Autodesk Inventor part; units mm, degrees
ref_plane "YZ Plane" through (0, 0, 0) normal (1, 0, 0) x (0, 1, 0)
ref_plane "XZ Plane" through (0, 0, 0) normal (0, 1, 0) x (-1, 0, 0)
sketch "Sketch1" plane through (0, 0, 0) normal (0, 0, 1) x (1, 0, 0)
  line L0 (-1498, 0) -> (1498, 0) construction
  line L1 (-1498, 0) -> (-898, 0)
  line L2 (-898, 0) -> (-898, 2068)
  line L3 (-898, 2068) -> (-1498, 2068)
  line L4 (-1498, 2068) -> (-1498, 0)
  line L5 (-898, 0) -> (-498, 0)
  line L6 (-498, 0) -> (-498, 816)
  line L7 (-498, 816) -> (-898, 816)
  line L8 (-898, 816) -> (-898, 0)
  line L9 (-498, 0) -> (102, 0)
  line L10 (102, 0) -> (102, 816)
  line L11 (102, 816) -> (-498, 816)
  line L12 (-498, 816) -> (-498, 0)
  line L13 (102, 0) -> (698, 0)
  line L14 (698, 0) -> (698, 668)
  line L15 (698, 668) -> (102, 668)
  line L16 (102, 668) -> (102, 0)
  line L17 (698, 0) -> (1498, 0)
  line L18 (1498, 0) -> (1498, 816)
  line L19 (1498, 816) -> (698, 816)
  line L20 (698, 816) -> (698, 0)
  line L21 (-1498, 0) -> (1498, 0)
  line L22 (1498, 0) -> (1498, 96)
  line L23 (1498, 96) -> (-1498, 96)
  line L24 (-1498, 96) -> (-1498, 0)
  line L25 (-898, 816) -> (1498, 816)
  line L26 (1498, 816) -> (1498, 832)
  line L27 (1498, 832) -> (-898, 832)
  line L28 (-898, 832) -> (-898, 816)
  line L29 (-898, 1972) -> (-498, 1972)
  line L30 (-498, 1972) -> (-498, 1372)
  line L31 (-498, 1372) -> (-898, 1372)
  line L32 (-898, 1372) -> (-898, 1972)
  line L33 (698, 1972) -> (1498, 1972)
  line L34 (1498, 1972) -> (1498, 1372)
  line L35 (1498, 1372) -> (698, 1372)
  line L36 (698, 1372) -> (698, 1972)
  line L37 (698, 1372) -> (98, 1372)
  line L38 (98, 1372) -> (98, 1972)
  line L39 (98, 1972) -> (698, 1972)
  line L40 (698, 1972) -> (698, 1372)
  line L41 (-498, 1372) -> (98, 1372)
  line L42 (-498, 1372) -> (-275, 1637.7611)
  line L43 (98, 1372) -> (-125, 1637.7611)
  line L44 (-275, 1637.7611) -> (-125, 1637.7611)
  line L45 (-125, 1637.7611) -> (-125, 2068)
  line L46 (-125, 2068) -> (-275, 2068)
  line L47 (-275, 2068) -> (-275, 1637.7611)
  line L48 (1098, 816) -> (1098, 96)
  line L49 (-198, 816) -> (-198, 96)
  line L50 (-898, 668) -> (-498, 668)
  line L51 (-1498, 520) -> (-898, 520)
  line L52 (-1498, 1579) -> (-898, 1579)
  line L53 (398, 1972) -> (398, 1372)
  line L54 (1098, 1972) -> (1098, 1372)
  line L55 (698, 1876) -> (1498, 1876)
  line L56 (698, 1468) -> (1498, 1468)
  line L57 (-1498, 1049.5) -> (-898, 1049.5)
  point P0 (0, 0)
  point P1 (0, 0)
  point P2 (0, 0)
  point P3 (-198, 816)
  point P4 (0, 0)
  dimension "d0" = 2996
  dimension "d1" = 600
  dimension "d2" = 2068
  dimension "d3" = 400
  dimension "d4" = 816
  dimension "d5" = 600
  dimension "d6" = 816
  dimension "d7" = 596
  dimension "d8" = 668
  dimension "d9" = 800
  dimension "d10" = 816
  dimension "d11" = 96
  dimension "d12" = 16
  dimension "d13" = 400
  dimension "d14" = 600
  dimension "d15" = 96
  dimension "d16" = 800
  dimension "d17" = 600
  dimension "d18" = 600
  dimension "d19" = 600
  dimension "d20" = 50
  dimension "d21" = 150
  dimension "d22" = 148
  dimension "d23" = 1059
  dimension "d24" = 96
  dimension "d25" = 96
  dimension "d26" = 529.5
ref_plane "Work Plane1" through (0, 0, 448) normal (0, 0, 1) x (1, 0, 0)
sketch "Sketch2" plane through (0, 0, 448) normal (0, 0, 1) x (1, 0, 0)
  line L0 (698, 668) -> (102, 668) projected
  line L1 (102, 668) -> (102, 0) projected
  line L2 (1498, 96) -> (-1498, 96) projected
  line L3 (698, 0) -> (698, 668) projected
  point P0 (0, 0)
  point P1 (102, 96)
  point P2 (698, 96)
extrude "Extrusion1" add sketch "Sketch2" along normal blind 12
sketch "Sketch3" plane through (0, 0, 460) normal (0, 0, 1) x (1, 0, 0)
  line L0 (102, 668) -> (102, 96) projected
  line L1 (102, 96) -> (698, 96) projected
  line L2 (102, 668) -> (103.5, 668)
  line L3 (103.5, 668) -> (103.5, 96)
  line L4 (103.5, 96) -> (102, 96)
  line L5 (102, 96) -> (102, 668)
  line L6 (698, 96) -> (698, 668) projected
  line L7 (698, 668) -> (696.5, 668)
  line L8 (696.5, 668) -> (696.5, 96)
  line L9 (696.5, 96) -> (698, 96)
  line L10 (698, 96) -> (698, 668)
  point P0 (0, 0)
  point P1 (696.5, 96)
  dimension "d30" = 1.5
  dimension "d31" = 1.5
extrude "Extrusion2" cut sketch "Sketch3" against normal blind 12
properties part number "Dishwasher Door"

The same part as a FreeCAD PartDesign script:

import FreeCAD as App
import Part
import Sketcher

V = App.Vector

doc = App.newDocument("Part")
body = doc.addObject("PartDesign::Body", "Body")

# Sketch on XY plane
sketch1 = body.newObject("Sketcher::SketchObject", "Sketch")
sketch1.AttachmentSupport = (doc.getObject("XY_Plane"), [""])
sketch1.MapMode = "FlatFace"
sketch1.AttachmentOffset = App.Placement(V(0, 0, 448), App.Rotation())
sketch1.addGeometry(Part.LineSegment(V(698, 96, 0), V(698, 668, 0)), False)
sketch1.addGeometry(Part.LineSegment(V(698, 668, 0), V(102, 668, 0)), False)
sketch1.addGeometry(Part.LineSegment(V(102, 668, 0), V(102, 96, 0)), False)
sketch1.addGeometry(Part.LineSegment(V(102, 96, 0), V(698, 96, 0)), False)
sketch1.addConstraint(Sketcher.Constraint("Coincident", 0, 2, 1, 1))
sketch1.addConstraint(Sketcher.Constraint("Coincident", 1, 2, 2, 1))
sketch1.addConstraint(Sketcher.Constraint("Coincident", 2, 2, 3, 1))
sketch1.addConstraint(Sketcher.Constraint("Coincident", 3, 2, 0, 1))
sketch1.addConstraint(Sketcher.Constraint("Vertical", 0))
sketch1.addConstraint(Sketcher.Constraint("Horizontal", 1))
sketch1.addConstraint(Sketcher.Constraint("Vertical", 2))
sketch1.addConstraint(Sketcher.Constraint("Horizontal", 3))
sketch1.addConstraint(Sketcher.Constraint("DistanceX", 1, 2, 1, 1, 596.0))
sketch1.addConstraint(Sketcher.Constraint("DistanceY", 0, 1, 0, 2, 572.0))
sketch1.addConstraint(Sketcher.Constraint("DistanceX", -1, 1, 0, 2, 698.0))
sketch1.addConstraint(Sketcher.Constraint("DistanceY", -1, 1, 0, 2, 668.0))
pad1 = body.newObject("PartDesign::Pad", "Pad")
pad1.Profile = sketch1
pad1.Length = 12

# Sketch on XY plane
sketch2 = body.newObject("Sketcher::SketchObject", "Sketch001")
sketch2.AttachmentSupport = (doc.getObject("XY_Plane"), [""])
sketch2.MapMode = "FlatFace"
sketch2.AttachmentOffset = App.Placement(V(0, 0, 460), App.Rotation())
sketch2.addGeometry(Part.LineSegment(V(103.5, 668, 0), V(102, 668, 0)), False)
sketch2.addGeometry(Part.LineSegment(V(102, 668, 0), V(102, 96, 0)), False)
sketch2.addGeometry(Part.LineSegment(V(102, 96, 0), V(103.5, 96, 0)), False)
sketch2.addGeometry(Part.LineSegment(V(103.5, 96, 0), V(103.5, 668, 0)), False)
sketch2.addGeometry(Part.LineSegment(V(696.5, 668, 0), V(696.5, 96, 0)), False)
sketch2.addGeometry(Part.LineSegment(V(696.5, 96, 0), V(698, 96, 0)), False)
sketch2.addGeometry(Part.LineSegment(V(698, 96, 0), V(698, 668, 0)), False)
sketch2.addGeometry(Part.LineSegment(V(698, 668, 0), V(696.5, 668, 0)), False)
sketch2.addConstraint(Sketcher.Constraint("Coincident", 0, 2, 1, 1))
sketch2.addConstraint(Sketcher.Constraint("Coincident", 1, 2, 2, 1))
sketch2.addConstraint(Sketcher.Constraint("Coincident", 2, 2, 3, 1))
sketch2.addConstraint(Sketcher.Constraint("Coincident", 3, 2, 0, 1))
sketch2.addConstraint(Sketcher.Constraint("Coincident", 4, 2, 5, 1))
sketch2.addConstraint(Sketcher.Constraint("Coincident", 5, 2, 6, 1))
sketch2.addConstraint(Sketcher.Constraint("Coincident", 6, 2, 7, 1))
sketch2.addConstraint(Sketcher.Constraint("Coincident", 7, 2, 4, 1))
sketch2.addConstraint(Sketcher.Constraint("Horizontal", 0))
sketch2.addConstraint(Sketcher.Constraint("Vertical", 1))
sketch2.addConstraint(Sketcher.Constraint("Horizontal", 2))
sketch2.addConstraint(Sketcher.Constraint("Vertical", 3))
sketch2.addConstraint(Sketcher.Constraint("Vertical", 4))
sketch2.addConstraint(Sketcher.Constraint("Horizontal", 5))
sketch2.addConstraint(Sketcher.Constraint("Vertical", 6))
sketch2.addConstraint(Sketcher.Constraint("Horizontal", 7))
sketch2.addConstraint(Sketcher.Constraint("Horizontal", 2, 2, 4, 2))
sketch2.addConstraint(Sketcher.Constraint("Horizontal", 3, 2, 6, 2))
sketch2.addConstraint(Sketcher.Constraint("Equal", 2, 5))
sketch2.addConstraint(Sketcher.Constraint("DistanceX", 0, 2, 0, 1, 1.5))
sketch2.addConstraint(Sketcher.Constraint("DistanceY", 1, 2, 1, 1, 572.0))
sketch2.addConstraint(Sketcher.Constraint("DistanceX", -1, 1, 0, 2, 102.0))
sketch2.addConstraint(Sketcher.Constraint("DistanceY", -1, 1, 0, 2, 668.0))
sketch2.addConstraint(Sketcher.Constraint("DistanceX", -1, 1, 5, 2, 698.0))
pocket1 = body.newObject("PartDesign::Pocket", "Pocket")
pocket1.Profile = sketch2
pocket1.Length = 12

doc.recompute()
